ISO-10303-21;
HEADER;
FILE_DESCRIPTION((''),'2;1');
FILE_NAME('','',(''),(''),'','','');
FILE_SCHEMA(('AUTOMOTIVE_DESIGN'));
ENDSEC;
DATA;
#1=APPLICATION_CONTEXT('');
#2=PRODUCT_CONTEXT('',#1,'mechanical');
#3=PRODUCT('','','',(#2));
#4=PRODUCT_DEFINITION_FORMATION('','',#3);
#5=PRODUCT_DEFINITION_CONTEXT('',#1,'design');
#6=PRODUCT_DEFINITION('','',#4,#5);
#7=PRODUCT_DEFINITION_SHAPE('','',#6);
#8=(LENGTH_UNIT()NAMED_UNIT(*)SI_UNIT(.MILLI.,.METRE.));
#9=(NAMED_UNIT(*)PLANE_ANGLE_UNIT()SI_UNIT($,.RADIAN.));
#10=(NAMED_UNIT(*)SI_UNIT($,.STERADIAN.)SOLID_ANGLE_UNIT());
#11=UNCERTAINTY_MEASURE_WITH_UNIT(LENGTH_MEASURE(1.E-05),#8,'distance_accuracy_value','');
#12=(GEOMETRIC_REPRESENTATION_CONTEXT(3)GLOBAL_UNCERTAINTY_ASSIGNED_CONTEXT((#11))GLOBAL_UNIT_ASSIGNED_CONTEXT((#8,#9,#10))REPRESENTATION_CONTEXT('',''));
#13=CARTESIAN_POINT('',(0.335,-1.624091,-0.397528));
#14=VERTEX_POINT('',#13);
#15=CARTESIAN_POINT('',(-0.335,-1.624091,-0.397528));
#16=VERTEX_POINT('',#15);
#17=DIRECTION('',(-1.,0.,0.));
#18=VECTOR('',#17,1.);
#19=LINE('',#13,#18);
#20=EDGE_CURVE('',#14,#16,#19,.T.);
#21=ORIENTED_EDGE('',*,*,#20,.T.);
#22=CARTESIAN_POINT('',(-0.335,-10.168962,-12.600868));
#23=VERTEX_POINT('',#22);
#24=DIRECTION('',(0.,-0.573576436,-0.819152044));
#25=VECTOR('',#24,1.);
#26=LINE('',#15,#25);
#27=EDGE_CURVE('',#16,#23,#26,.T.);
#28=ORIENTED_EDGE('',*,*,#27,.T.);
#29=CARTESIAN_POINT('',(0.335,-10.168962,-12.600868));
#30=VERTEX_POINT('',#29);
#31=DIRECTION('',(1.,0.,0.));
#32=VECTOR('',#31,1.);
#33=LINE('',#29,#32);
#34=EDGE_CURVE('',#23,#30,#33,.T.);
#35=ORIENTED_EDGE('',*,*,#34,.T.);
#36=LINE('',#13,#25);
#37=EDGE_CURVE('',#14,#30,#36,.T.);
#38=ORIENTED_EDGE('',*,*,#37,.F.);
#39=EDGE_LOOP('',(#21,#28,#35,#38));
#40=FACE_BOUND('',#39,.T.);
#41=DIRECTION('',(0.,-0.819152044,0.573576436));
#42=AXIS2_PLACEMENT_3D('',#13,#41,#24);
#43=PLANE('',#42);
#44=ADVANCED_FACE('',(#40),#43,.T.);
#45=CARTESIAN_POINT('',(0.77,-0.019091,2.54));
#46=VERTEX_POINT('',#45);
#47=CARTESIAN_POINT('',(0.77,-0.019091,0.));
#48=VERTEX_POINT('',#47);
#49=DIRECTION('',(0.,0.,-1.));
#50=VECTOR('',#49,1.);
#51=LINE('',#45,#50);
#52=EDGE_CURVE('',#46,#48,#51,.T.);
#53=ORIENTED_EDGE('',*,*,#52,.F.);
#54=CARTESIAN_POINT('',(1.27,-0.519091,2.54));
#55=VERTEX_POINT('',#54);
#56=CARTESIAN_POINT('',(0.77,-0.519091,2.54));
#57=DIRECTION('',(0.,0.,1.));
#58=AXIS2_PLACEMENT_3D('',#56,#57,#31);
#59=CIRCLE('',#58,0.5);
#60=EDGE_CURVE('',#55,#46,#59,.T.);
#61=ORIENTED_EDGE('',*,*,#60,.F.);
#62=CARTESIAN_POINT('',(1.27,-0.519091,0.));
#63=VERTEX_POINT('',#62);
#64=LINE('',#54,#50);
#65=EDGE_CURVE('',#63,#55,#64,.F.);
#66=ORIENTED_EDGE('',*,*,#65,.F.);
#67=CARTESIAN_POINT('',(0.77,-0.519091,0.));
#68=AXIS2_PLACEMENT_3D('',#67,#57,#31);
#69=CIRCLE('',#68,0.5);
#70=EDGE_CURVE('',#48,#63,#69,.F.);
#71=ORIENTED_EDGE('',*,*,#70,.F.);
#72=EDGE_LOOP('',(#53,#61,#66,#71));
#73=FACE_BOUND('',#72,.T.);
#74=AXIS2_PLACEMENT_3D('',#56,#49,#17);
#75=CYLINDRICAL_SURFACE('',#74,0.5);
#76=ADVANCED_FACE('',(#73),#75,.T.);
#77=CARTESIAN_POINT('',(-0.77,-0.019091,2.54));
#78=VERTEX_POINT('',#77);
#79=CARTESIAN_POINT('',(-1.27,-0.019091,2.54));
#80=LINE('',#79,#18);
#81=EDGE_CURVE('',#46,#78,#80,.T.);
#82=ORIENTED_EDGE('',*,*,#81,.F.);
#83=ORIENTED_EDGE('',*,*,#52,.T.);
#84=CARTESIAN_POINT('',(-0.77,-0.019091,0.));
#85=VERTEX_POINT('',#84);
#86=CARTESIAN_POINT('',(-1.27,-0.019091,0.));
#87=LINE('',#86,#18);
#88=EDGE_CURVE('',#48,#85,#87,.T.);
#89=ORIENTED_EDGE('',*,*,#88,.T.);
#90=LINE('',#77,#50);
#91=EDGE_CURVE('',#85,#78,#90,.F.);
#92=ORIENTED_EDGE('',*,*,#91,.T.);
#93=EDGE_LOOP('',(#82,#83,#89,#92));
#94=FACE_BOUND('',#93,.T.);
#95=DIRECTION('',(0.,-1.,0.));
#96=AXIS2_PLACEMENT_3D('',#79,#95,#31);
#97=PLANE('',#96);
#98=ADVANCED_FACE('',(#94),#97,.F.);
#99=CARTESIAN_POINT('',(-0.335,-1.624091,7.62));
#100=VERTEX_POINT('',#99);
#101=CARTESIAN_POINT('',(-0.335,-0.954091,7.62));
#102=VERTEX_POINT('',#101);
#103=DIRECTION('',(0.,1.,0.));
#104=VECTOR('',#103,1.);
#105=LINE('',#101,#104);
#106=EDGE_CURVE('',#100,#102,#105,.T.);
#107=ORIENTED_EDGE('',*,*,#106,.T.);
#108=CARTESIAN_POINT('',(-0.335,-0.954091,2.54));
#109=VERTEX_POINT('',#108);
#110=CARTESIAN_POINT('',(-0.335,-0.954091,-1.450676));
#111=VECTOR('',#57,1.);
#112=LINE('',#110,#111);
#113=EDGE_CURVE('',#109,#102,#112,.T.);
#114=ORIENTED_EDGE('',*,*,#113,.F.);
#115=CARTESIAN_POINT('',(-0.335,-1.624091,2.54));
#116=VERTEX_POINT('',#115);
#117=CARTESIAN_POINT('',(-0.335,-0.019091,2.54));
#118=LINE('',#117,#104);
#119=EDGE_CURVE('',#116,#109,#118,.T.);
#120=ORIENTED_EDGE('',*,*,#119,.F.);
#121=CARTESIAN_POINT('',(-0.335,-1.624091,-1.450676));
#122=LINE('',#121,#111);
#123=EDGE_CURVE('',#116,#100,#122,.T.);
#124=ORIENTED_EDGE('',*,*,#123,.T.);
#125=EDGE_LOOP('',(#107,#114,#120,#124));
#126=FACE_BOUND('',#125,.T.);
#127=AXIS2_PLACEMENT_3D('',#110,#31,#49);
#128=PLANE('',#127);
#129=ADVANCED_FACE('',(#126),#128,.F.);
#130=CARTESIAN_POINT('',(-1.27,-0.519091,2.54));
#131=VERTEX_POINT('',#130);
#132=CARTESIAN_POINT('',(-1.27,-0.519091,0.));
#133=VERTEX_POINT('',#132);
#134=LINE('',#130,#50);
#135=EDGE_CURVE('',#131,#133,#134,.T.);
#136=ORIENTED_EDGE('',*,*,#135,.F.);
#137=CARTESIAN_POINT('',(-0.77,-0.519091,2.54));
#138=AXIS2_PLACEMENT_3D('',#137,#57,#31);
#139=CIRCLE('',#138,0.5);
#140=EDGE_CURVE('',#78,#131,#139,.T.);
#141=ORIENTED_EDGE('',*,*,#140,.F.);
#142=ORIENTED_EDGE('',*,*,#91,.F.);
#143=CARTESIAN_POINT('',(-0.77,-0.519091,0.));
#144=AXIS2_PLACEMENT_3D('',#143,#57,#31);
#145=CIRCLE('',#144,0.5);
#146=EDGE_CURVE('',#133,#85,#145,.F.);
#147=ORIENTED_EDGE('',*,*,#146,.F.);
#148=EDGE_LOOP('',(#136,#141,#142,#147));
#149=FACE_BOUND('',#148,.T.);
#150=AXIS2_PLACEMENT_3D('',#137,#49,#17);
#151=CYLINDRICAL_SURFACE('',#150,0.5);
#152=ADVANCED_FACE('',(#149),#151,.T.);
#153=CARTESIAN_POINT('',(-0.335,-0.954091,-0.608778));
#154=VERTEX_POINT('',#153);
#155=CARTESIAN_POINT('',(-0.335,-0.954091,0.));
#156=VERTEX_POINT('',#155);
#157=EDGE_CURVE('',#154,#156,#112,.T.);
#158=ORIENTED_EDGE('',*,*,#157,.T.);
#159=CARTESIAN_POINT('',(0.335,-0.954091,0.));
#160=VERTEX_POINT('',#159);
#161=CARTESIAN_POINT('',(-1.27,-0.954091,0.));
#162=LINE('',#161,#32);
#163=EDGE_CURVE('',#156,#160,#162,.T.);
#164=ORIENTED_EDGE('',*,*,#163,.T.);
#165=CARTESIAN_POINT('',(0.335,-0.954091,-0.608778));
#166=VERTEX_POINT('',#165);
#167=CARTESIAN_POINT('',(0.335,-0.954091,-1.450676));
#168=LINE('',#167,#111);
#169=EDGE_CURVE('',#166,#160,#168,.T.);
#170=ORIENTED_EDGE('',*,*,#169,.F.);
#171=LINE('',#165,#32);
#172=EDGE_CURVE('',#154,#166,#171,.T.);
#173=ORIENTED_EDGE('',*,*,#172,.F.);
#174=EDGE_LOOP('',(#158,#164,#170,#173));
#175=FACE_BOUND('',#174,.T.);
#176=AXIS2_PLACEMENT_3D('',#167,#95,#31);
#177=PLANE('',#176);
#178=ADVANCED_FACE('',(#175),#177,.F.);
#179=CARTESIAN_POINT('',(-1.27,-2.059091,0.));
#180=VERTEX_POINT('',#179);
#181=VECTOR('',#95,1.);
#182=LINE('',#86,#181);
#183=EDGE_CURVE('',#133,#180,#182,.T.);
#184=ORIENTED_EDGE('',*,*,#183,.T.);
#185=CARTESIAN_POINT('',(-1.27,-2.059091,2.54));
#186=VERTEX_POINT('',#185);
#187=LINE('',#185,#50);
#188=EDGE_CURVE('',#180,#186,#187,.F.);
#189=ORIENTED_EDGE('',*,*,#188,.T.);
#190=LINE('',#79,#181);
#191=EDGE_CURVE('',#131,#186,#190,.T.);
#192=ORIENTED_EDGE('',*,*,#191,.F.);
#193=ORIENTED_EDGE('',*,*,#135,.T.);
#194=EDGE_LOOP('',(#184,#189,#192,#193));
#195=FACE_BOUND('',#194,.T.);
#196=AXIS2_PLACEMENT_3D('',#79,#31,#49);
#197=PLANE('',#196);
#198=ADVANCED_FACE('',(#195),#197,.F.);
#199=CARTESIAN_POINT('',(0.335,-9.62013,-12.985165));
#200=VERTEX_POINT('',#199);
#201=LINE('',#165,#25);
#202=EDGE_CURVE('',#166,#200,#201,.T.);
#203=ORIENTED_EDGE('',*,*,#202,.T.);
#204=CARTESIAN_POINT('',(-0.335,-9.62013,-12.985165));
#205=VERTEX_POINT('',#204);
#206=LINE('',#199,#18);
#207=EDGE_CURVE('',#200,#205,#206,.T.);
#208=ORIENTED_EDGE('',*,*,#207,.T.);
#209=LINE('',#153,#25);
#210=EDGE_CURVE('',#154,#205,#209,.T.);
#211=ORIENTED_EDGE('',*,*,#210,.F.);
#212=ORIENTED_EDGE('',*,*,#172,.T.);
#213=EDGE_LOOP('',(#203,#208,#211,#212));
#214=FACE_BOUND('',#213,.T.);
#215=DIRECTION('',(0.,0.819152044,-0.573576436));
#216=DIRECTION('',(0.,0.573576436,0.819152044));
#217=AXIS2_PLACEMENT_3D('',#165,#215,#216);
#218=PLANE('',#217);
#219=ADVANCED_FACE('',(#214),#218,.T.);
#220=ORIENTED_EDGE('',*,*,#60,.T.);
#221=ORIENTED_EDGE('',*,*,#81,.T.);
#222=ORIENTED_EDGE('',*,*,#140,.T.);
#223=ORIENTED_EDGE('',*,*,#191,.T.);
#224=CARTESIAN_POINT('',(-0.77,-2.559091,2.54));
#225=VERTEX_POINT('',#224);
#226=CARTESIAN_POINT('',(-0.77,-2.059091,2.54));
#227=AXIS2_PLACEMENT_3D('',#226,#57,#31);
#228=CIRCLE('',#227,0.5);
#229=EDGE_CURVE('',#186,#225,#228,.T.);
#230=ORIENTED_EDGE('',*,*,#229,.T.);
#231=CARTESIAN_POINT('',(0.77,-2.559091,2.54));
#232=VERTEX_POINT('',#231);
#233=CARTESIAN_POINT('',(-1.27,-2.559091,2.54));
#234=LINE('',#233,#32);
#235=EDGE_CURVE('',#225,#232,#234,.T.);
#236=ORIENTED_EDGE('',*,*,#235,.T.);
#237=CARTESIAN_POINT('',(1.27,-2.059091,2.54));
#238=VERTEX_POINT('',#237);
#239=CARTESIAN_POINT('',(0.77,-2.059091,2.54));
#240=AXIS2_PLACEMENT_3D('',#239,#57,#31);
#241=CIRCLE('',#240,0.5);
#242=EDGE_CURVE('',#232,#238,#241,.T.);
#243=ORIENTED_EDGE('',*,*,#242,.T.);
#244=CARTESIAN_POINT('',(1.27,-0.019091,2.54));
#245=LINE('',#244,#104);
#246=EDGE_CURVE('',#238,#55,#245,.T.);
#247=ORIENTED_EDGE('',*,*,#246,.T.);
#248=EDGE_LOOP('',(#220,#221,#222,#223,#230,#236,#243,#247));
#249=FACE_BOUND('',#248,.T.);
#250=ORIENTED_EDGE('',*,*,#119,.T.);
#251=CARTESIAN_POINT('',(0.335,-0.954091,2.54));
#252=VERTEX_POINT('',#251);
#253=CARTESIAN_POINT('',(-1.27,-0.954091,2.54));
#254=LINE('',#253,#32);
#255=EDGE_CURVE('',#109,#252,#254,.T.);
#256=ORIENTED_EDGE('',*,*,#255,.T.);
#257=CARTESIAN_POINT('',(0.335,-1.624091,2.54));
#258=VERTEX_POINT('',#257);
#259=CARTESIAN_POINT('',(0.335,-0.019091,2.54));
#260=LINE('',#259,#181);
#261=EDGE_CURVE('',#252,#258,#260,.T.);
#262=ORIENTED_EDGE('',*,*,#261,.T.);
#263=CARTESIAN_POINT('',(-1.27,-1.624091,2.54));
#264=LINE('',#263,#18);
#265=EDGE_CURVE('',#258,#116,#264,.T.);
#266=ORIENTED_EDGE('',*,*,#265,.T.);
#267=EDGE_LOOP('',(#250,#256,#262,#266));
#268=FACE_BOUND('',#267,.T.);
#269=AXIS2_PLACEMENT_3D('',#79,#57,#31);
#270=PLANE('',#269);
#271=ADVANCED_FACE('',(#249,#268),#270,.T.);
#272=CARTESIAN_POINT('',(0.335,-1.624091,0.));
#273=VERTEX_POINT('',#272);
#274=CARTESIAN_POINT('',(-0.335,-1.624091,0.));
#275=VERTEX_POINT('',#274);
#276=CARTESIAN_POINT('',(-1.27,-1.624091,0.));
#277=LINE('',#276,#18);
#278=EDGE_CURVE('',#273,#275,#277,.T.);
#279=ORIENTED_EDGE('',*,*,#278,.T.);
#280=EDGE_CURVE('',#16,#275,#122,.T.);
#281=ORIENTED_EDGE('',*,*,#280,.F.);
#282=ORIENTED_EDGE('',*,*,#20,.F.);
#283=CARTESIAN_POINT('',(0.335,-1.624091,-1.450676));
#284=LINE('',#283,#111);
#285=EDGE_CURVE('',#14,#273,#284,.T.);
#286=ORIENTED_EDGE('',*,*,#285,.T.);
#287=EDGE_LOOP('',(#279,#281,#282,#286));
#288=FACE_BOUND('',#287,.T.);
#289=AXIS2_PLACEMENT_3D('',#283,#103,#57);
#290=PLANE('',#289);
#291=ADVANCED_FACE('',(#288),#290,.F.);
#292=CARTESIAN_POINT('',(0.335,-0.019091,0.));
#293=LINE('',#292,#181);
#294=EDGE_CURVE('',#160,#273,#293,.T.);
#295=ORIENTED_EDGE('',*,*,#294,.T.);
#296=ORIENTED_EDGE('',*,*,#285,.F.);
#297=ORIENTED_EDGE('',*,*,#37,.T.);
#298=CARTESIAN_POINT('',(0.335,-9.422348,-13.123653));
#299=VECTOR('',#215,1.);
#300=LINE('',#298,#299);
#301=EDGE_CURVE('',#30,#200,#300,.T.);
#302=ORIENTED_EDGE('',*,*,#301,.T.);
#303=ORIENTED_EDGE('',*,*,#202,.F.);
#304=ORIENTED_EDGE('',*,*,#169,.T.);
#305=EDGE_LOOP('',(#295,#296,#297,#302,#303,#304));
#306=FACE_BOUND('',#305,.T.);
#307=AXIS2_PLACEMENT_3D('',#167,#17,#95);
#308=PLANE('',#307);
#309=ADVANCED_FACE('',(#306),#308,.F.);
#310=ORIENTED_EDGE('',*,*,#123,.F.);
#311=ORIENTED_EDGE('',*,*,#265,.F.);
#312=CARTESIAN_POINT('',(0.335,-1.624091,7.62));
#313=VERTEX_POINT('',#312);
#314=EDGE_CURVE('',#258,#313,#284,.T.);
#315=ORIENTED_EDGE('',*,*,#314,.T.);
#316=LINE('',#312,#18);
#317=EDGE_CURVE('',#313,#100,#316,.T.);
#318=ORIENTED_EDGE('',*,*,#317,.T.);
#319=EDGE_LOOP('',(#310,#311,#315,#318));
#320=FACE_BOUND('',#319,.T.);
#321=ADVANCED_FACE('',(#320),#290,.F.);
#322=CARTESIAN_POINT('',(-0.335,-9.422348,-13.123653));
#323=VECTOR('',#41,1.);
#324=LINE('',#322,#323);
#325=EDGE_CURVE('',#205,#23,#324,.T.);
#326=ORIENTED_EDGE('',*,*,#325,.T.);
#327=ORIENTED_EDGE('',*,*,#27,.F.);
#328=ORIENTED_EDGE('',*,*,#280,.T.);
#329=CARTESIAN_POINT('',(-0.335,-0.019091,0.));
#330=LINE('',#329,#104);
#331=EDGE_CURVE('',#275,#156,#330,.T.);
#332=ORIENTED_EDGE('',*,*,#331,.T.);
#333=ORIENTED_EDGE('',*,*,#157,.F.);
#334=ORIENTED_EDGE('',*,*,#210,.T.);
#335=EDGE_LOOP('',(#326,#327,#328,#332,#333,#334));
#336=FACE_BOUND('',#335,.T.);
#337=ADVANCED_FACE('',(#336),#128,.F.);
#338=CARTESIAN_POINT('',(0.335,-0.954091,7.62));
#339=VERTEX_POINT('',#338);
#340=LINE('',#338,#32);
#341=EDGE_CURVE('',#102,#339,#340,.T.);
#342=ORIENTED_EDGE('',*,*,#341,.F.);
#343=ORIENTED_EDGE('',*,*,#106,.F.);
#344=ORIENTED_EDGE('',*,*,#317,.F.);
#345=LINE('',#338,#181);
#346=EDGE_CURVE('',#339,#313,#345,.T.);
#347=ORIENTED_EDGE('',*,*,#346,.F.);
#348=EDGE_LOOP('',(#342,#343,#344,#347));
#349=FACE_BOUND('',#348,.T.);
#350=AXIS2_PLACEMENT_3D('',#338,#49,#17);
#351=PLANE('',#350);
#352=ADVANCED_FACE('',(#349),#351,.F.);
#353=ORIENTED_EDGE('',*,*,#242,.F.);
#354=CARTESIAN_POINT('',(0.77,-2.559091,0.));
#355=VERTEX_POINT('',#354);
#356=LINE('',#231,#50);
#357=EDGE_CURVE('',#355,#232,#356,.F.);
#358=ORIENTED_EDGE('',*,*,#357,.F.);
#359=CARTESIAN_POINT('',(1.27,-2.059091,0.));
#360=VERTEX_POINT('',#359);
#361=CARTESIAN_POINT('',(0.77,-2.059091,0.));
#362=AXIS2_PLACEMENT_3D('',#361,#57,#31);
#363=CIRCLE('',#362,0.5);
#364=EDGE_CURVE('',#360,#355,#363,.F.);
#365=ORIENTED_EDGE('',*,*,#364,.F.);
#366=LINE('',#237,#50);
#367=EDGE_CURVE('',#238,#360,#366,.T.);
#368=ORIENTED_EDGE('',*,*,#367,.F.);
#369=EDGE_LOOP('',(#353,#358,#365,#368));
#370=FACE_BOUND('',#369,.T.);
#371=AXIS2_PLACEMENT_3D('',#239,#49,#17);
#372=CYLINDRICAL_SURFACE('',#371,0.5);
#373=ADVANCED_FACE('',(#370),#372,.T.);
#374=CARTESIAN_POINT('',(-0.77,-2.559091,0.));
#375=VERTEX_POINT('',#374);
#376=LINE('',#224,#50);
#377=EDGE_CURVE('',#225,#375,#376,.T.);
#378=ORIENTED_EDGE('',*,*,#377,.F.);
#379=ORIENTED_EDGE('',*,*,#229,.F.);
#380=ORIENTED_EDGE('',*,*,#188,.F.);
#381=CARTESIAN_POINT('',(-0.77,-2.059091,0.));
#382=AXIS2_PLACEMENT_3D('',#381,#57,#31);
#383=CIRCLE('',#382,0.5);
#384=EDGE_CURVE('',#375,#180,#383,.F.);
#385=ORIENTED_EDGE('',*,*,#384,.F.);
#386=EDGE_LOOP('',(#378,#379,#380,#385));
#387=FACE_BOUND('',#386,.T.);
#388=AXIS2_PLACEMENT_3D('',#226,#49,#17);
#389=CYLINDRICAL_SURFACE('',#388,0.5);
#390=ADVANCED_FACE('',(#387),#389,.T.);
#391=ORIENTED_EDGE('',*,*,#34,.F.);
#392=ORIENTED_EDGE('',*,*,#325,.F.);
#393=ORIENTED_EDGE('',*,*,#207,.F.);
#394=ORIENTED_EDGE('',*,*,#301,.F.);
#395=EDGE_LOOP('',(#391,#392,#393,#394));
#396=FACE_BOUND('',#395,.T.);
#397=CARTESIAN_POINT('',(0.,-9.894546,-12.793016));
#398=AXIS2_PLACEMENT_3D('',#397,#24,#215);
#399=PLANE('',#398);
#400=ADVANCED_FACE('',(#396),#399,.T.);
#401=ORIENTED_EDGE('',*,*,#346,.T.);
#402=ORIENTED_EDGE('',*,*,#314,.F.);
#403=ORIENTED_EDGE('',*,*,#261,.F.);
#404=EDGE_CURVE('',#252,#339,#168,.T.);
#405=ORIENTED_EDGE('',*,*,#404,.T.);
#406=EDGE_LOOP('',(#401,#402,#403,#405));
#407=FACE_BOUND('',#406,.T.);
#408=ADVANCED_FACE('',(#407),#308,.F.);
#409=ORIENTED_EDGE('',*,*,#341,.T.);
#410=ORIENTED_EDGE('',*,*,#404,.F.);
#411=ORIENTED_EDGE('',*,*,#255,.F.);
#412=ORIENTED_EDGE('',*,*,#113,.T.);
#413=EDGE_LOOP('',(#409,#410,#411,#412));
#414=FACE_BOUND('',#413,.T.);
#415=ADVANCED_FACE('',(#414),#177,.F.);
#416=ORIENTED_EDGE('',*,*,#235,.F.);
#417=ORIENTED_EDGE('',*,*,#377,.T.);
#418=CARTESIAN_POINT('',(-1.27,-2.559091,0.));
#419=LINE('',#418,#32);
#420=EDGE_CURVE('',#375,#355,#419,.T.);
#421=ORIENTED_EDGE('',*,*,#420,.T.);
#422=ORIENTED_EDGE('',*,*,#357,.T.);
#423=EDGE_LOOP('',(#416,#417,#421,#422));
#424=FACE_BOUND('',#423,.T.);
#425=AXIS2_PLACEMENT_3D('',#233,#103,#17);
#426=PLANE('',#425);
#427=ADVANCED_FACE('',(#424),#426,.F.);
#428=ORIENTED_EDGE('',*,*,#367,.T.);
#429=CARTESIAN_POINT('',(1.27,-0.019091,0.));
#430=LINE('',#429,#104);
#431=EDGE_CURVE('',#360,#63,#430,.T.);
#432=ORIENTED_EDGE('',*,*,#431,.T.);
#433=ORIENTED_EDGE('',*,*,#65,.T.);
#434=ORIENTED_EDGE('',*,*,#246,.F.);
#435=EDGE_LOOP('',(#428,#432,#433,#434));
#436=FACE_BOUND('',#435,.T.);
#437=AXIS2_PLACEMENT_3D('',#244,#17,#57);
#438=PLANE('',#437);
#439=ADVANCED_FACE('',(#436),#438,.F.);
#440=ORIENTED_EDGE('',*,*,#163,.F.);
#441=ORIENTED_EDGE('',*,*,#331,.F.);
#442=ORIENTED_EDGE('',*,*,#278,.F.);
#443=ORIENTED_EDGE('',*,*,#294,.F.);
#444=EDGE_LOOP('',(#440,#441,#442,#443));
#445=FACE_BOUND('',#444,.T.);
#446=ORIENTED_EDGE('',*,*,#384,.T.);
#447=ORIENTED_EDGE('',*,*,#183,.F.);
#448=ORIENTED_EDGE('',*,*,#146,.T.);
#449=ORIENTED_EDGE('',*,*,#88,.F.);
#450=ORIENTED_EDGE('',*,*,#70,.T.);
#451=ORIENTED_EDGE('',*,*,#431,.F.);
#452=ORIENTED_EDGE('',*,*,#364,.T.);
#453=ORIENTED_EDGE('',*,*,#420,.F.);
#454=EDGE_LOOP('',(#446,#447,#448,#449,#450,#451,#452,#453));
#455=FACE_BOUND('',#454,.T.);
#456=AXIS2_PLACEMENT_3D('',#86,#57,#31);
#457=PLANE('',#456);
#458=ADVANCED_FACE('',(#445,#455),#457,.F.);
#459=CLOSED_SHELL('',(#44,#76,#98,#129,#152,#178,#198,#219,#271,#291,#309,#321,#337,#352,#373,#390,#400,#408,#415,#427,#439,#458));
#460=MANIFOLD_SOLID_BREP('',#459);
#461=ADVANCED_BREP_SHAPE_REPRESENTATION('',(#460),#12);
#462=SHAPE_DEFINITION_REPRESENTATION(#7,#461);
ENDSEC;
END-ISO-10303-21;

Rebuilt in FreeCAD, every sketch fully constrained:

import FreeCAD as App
import Part
import Sketcher
from FreeCAD import Vector
Q = App.Units.Quantity


def edges_at(feature, points):
    """Names of the edges that pass closest to the given points."""
    edges = feature.Shape.Edges
    near = lambda p: min(range(len(edges)), key=lambda i: edges[i].distToShape(Part.Vertex(*p))[0])
    return sorted({f"Edge{near(p) + 1}" for p in points})

doc = App.newDocument("Part")
body = doc.addObject("PartDesign::Body", "Body")

# Sketch on XY plane
sketch1 = doc.addObject("Sketcher::SketchObject", "Sketch")
body.addObject(sketch1)
sketch1.AttachmentSupport = (doc.XY_Plane, [""])
sketch1.MapMode = "FlatFace"
sketch1.addGeometry(Part.LineSegment(Vector(-1.27, -0.019091, 0), Vector(-1.27, -2.559091, 0)), False)
sketch1.addGeometry(Part.LineSegment(Vector(-1.27, -2.559091, 0), Vector(1.27, -2.559091, 0)), False)
sketch1.addGeometry(Part.LineSegment(Vector(1.27, -2.559091, 0), Vector(1.27, -0.019091, 0)), False)
sketch1.addGeometry(Part.LineSegment(Vector(1.27, -0.019091, 0), Vector(-1.27, -0.019091, 0)), False)
sketch1.addConstraint(Sketcher.Constraint("Coincident", 0, 2, 1, 1))
sketch1.addConstraint(Sketcher.Constraint("Coincident", 1, 2, 2, 1))
sketch1.addConstraint(Sketcher.Constraint("Coincident", 2, 2, 3, 1))
sketch1.addConstraint(Sketcher.Constraint("Coincident", 3, 2, 0, 1))
sketch1.addConstraint(Sketcher.Constraint("Vertical", 0))
sketch1.addConstraint(Sketcher.Constraint("Horizontal", 1))
sketch1.addConstraint(Sketcher.Constraint("Vertical", 2))
sketch1.addConstraint(Sketcher.Constraint("Horizontal", 3))
sketch1.addConstraint(Sketcher.Constraint("Equal", 3, 0))
sketch1.addConstraint(Sketcher.Constraint("DistanceX", 1, 1, 1, 2, Q("2.54 mm")))
sketch1.addConstraint(Sketcher.Constraint("DistanceX", 0, 2, -1, 1, Q("1.27 mm")))
sketch1.addConstraint(Sketcher.Constraint("DistanceY", 0, 2, -1, 1, Q("2.559091 mm")))
pad1 = doc.addObject("PartDesign::Pad", "Pad")
body.addObject(pad1)
pad1.Profile = sketch1
pad1.Length = 2.54

# Sketch on XY plane
sketch2 = doc.addObject("Sketcher::SketchObject", "Sketch001")
body.addObject(sketch2)
sketch2.AttachmentSupport = (doc.XY_Plane, [""])
sketch2.MapMode = "FlatFace"
sketch2.AttachmentOffset = App.Placement(Vector(0, 0, 7.62), App.Rotation())
sketch2.addGeometry(Part.LineSegment(Vector(0.335, -0.954091, 0), Vector(0.335, -1.624091, 0)), False)
sketch2.addGeometry(Part.LineSegment(Vector(0.335, -1.624091, 0), Vector(-0.335, -1.624091, 0)), False)
sketch2.addGeometry(Part.LineSegment(Vector(-0.335, -1.624091, 0), Vector(-0.335, -0.954091, 0)), False)
sketch2.addGeometry(Part.LineSegment(Vector(-0.335, -0.954091, 0), Vector(0.335, -0.954091, 0)), False)
sketch2.addConstraint(Sketcher.Constraint("Coincident", 0, 2, 1, 1))
sketch2.addConstraint(Sketcher.Constraint("Coincident", 1, 2, 2, 1))
sketch2.addConstraint(Sketcher.Constraint("Coincident", 2, 2, 3, 1))
sketch2.addConstraint(Sketcher.Constraint("Coincident", 3, 2, 0, 1))
sketch2.addConstraint(Sketcher.Constraint("Vertical", 0))
sketch2.addConstraint(Sketcher.Constraint("Horizontal", 1))
sketch2.addConstraint(Sketcher.Constraint("Vertical", 2))
sketch2.addConstraint(Sketcher.Constraint("Horizontal", 3))
sketch2.addConstraint(Sketcher.Constraint("Equal", 3, 0))
sketch2.addConstraint(Sketcher.Constraint("DistanceX", 1, 2, 1, 1, Q("0.67 mm")))
sketch2.addConstraint(Sketcher.Constraint("DistanceX", -1, 1, 0, 2, Q("0.335 mm")))
sketch2.addConstraint(Sketcher.Constraint("DistanceY", 0, 2, -1, 1, Q("1.624091 mm")))

# Sketch on YZ plane
sketch3 = doc.addObject("Sketcher::SketchObject", "Sketch002")
body.addObject(sketch3)
sketch3.AttachmentSupport = (doc.YZ_Plane, [""])
sketch3.MapMode = "FlatFace"
sketch3.addGeometry(Part.LineSegment(Vector(-1.299091, 7.62, 0), Vector(-1.299091, -0.5, 0)), False)
sketch3.addGeometry(Part.LineSegment(Vector(-1.299091, -0.5, 0), Vector(-9.902737, -12.787281, 0)), False)
sketch3.addConstraint(Sketcher.Constraint("Coincident", 0, 2, 1, 1))
sketch3.addConstraint(Sketcher.Constraint("Vertical", 0))
sketch3.addConstraint(Sketcher.Constraint("Angle", 1, Q("-125 deg")))
sketch3.addConstraint(Sketcher.Constraint("Distance", 1, Q("15 mm")))
sketch3.addConstraint(Sketcher.Constraint("DistanceY", 0, 2, 0, 1, Q("8.12 mm")))
sketch3.addConstraint(Sketcher.Constraint("DistanceY", 0, 2, -1, 1, Q("0.5 mm")))
sketch3.addConstraint(Sketcher.Constraint("DistanceX", 0, 1, -1, 1, Q("1.299091 mm")))
doc.recompute()

additivepipe = doc.addObject("PartDesign::AdditivePipe", "AdditivePipe")
body.addObject(additivepipe)
additivepipe.Profile = sketch2
additivepipe.Spine = (sketch3, ["Edge1", "Edge2"])
additivepipe.Transition = "Right corner"
doc.recompute()

fillet = doc.addObject("PartDesign::Fillet", "Fillet")
body.addObject(fillet)
fillet.Base = (additivepipe, edges_at(additivepipe, [
    (-1.27, -0.019, 1.27),
    (1.27, -0.019, 1.27),
    (1.27, -2.559, 1.27),
    (-1.27, -2.559, 1.27),
]))
fillet.Radius = 0.5

doc.recompute()
